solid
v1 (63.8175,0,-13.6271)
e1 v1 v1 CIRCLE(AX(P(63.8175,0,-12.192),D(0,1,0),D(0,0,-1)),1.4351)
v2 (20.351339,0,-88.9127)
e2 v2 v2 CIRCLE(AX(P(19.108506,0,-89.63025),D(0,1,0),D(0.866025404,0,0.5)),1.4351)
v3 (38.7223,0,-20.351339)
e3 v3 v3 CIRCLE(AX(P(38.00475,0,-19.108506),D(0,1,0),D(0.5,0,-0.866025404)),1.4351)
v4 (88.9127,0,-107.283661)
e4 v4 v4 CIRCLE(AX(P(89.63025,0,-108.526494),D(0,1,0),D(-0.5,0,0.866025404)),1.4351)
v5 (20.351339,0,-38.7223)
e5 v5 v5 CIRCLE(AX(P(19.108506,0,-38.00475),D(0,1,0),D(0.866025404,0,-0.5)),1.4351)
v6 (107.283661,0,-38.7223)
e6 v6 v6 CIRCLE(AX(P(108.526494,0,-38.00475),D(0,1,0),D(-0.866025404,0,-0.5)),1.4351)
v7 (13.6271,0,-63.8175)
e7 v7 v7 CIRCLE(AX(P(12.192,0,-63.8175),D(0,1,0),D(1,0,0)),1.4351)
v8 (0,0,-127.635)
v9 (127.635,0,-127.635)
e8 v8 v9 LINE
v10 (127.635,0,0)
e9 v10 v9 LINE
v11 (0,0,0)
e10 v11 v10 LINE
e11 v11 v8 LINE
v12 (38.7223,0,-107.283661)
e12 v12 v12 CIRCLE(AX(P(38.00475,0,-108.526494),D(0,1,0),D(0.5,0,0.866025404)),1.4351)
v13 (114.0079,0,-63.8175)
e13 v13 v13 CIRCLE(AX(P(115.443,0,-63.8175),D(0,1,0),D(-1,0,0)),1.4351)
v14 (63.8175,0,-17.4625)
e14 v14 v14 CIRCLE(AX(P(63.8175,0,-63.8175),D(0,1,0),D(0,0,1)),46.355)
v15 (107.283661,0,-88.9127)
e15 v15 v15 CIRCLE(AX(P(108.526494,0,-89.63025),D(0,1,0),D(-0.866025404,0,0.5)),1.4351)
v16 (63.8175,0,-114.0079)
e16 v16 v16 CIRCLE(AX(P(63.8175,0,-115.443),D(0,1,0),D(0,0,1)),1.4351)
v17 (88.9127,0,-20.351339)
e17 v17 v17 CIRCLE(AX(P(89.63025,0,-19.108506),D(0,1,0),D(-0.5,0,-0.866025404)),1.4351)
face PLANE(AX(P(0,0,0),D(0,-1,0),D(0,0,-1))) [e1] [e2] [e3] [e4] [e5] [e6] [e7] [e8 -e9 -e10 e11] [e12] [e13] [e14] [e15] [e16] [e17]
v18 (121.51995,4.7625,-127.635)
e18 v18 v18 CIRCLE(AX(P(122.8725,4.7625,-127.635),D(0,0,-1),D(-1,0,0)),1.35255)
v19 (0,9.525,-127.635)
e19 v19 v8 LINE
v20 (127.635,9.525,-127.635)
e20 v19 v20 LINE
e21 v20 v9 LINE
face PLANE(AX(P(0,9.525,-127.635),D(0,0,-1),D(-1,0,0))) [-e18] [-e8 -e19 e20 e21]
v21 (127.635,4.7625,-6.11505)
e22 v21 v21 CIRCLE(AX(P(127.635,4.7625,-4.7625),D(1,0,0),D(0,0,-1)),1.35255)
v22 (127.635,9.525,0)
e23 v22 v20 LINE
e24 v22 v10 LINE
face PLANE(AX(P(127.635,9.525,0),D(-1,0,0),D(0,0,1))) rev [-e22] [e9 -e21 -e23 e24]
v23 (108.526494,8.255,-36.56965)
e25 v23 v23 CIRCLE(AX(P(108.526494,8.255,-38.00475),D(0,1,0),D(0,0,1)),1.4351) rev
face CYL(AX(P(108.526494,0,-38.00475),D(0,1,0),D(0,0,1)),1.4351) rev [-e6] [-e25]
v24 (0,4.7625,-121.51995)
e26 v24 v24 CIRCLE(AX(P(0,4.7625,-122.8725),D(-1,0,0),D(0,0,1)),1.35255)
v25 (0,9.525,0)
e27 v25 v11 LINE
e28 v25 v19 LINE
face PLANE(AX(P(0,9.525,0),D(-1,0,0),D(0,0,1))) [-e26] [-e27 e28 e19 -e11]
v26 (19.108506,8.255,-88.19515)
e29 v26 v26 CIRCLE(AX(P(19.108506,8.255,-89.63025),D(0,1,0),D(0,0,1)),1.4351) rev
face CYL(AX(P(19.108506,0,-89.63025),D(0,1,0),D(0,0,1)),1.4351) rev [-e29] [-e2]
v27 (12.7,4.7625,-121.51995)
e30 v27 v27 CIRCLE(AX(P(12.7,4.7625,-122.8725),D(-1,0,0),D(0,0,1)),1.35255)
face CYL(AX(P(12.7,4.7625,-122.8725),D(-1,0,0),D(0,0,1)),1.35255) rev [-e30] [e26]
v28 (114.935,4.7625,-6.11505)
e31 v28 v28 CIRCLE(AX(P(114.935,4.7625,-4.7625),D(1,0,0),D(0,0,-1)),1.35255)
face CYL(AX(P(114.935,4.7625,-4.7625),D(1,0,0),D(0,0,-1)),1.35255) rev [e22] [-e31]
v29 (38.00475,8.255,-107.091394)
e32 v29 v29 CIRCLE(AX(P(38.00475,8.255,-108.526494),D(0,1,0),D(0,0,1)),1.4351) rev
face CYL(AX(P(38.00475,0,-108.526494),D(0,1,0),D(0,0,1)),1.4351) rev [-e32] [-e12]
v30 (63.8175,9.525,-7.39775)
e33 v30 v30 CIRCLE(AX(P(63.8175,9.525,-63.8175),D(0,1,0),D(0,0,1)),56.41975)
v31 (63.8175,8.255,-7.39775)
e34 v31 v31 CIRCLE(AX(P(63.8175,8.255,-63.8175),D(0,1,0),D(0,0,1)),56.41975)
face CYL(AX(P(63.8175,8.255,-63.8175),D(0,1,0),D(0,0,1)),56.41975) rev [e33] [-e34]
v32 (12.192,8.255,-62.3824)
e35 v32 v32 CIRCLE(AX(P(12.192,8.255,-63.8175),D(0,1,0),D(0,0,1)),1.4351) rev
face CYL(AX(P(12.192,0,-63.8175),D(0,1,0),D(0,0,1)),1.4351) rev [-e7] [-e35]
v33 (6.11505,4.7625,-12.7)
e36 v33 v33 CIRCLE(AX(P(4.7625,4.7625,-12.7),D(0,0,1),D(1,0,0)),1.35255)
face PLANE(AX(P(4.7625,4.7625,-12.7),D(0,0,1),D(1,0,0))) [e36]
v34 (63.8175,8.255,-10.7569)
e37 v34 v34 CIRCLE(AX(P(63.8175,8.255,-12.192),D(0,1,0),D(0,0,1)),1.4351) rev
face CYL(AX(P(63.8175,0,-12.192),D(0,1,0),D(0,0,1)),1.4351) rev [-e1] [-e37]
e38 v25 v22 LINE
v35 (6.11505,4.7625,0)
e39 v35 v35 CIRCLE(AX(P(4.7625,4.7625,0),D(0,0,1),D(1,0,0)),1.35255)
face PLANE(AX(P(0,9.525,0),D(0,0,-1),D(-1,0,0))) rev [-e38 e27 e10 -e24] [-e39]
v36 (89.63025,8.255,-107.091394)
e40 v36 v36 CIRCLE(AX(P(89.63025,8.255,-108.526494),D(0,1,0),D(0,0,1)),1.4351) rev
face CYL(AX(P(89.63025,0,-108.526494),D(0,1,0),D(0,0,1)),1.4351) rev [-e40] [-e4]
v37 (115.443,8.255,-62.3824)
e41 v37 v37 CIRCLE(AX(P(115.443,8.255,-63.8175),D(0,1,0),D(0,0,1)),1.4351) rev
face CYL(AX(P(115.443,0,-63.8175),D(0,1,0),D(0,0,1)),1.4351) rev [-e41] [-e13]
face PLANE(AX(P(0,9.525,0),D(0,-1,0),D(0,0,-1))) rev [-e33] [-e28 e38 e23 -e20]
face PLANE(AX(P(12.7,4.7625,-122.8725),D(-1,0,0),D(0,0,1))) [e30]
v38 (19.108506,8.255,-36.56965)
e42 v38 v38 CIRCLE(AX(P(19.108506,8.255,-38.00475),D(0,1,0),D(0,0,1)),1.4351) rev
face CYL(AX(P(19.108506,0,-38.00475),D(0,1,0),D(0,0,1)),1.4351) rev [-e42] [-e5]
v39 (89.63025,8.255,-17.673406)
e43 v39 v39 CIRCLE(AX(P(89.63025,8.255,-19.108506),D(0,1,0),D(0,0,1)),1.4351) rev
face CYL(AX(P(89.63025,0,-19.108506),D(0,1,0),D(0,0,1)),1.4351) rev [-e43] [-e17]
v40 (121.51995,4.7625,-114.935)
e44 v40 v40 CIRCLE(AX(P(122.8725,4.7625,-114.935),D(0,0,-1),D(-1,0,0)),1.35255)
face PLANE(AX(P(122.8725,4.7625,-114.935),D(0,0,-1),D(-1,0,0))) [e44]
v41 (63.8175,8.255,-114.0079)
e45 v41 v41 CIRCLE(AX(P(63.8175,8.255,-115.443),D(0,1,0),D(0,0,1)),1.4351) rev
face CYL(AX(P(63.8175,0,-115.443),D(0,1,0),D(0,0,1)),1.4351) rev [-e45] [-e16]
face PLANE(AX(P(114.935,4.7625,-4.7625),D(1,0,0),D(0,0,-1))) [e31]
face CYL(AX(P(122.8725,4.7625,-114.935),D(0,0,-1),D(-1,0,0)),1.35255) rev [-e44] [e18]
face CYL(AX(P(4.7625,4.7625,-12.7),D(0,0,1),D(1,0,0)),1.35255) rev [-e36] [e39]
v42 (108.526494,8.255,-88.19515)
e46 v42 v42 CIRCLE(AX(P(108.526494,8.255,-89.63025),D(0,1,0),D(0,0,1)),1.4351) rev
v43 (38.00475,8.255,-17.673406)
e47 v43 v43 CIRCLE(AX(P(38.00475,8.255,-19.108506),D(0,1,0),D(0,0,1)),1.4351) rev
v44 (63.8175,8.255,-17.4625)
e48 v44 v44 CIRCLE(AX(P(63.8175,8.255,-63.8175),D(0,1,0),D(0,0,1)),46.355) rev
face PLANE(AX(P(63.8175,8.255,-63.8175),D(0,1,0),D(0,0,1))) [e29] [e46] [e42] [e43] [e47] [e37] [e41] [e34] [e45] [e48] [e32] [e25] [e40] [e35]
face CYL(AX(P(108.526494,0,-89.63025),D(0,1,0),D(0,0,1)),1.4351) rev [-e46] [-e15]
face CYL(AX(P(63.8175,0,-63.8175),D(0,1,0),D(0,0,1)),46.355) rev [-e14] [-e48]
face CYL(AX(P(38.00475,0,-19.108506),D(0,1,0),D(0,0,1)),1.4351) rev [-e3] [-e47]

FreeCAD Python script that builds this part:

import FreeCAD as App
import Part
import Sketcher
Q = App.Units.Quantity


def add_polygon(sketch, points):
    """Adds a closed chain of lines whose ends are joined by coincident constraints."""
    first, n = sketch.GeometryCount, len(points)
    for a, b in zip(points, points[1:] + points[:1]):
        sketch.addGeometry(Part.LineSegment(App.Vector(*a, 0), App.Vector(*b, 0)), False)
    for i in range(n):
        sketch.addConstraint(Sketcher.Constraint("Coincident", first + i, 2, first + (i + 1) % n, 1))

doc = App.newDocument("Part")
body = doc.addObject("PartDesign::Body", "Body")

# Sketch on XZ plane
sketch1 = body.newObject("Sketcher::SketchObject", "Sketch")
sketch1.AttachmentSupport = (doc.getObject("XZ_Plane"), [""])
sketch1.MapMode = "FlatFace"
add_polygon(sketch1, [(0, -127.635), (0, 0), (127.635, 0), (127.635, -127.635)])  # lines 0-3
sketch1.addConstraint([
    Sketcher.Constraint("Vertical", 0),
    Sketcher.Constraint("Horizontal", 1),
    Sketcher.Constraint("Vertical", 2),
    Sketcher.Constraint("Horizontal", 3),
    Sketcher.Constraint("Coincident", 0, 2, -1, 1),
    Sketcher.Constraint("Equal", 3, 0),
    Sketcher.Constraint("DistanceX", 1, 1, 1, 2, Q("5.025 in")),
])
pad1 = body.newObject("PartDesign::Pad", "Pad")
pad1.Profile = sketch1
pad1.Length = Q("0.375 in")
pad1.Reversed = True

# Sketch on YZ plane
sketch2 = body.newObject("Sketcher::SketchObject", "Sketch001")
sketch2.AttachmentSupport = (doc.getObject("YZ_Plane"), [""])
sketch2.MapMode = "FlatFace"
sketch2.AttachmentOffset = App.Placement(App.Vector(0, 0, 5.025 * 25.4), App.Rotation())
sketch2.addGeometry(Part.Circle(App.Vector(4.7625, -4.7625, 0), App.Vector(0, 0, 1), 1.35255), False)
sketch2.addConstraint([
    Sketcher.Constraint("Diameter", 0, Q("0.1065 in")),
    Sketcher.Constraint("DistanceX", -1, 1, 0, 3, Q("0.1875 in")),
    Sketcher.Constraint("DistanceY", 0, 3, -1, 1, Q("0.1875 in")),
])
pocket1 = body.newObject("PartDesign::Pocket", "Pocket")
pocket1.Profile = sketch2
pocket1.Length = Q("0.5 in")

# Sketch on XY plane
sketch3 = body.newObject("Sketcher::SketchObject", "Sketch002")
sketch3.AttachmentSupport = (doc.getObject("XY_Plane"), [""])
sketch3.MapMode = "FlatFace"
sketch3.AttachmentOffset = App.Placement(App.Vector(0, 0, -5.025 * 25.4), App.Rotation())
sketch3.addGeometry(Part.Circle(App.Vector(122.8725, 4.7625, 0), App.Vector(0, 0, 1), 1.35255), False)
sketch3.addConstraint([
    Sketcher.Constraint("Diameter", 0, Q("0.1065 in")),
    Sketcher.Constraint("DistanceY", -1, 1, 0, 3, Q("0.1875 in")),
    Sketcher.Constraint("DistanceX", -1, 1, 0, 3, Q("4.8375 in")),
])
pocket2 = body.newObject("PartDesign::Pocket", "Pocket001")
pocket2.Profile = sketch3
pocket2.Length = Q("0.5 in")
pocket2.Reversed = True

# Sketch on YZ plane
sketch4 = body.newObject("Sketcher::SketchObject", "Sketch003")
sketch4.AttachmentSupport = (doc.getObject("YZ_Plane"), [""])
sketch4.MapMode = "FlatFace"
sketch4.addGeometry(Part.Circle(App.Vector(4.7625, -122.8725, 0), App.Vector(0, 0, 1), 1.35255), False)
sketch4.addConstraint([
    Sketcher.Constraint("Diameter", 0, Q("0.1065 in")),
    Sketcher.Constraint("DistanceX", -1, 1, 0, 3, Q("0.1875 in")),
    Sketcher.Constraint("DistanceY", 0, 3, -1, 1, Q("4.8375 in")),
])
pocket3 = body.newObject("PartDesign::Pocket", "Pocket002")
pocket3.Profile = sketch4
pocket3.Length = Q("0.5 in")
pocket3.Reversed = True

# Sketch on XY plane
sketch5 = body.newObject("Sketcher::SketchObject", "Sketch004")
sketch5.AttachmentSupport = (doc.getObject("XY_Plane"), [""])
sketch5.MapMode = "FlatFace"
sketch5.addGeometry(Part.Circle(App.Vector(4.7625, 4.7625, 0), App.Vector(0, 0, 1), 1.35255), False)
sketch5.addConstraint([
    Sketcher.Constraint("Diameter", 0, Q("0.1065 in")),
    Sketcher.Constraint("DistanceX", -1, 1, 0, 3, Q("0.1875 in")),
    Sketcher.Constraint("DistanceY", -1, 1, 0, 3, Q("0.1875 in")),
])
pocket4 = body.newObject("PartDesign::Pocket", "Pocket003")
pocket4.Profile = sketch5
pocket4.Length = Q("0.5 in")

# Sketch on XZ plane
sketch6 = body.newObject("Sketcher::SketchObject", "Sketch005")
sketch6.AttachmentSupport = (doc.getObject("XZ_Plane"), [""])
sketch6.MapMode = "FlatFace"
sketch6.AttachmentOffset = App.Placement(App.Vector(0, 0, -0.375 * 25.4), App.Rotation())
sketch6.addGeometry(Part.Circle(App.Vector(63.8175, -63.8175, 0), App.Vector(0, 0, 1), 46.355), False)
sketch6.addConstraint([
    Sketcher.Constraint("Diameter", 0, Q("3.65 in")),
    Sketcher.Constraint("DistanceX", -1, 1, 0, 3, Q("2.5125 in")),
    Sketcher.Constraint("DistanceY", 0, 3, -1, 1, Q("2.5125 in")),
])
pocket5 = body.newObject("PartDesign::Pocket", "Pocket004")
pocket5.Profile = sketch6
pocket5.Length = Q("0.375 in")
pocket5.Reversed = True

# Sketch on XZ plane
sketch7 = body.newObject("Sketcher::SketchObject", "Sketch006")
sketch7.AttachmentSupport = (doc.getObject("XZ_Plane"), [""])
sketch7.MapMode = "FlatFace"
sketch7.AttachmentOffset = App.Placement(App.Vector(0, 0, -0.375 * 25.4), App.Rotation())
sketch7.addGeometry(Part.Circle(App.Vector(63.8175, -115.443, 0), App.Vector(0, 0, 1), 1.4351), False)
sketch7.addConstraint([
    Sketcher.Constraint("Diameter", 0, Q("0.113 in")),
    Sketcher.Constraint("DistanceY", 0, 3, -1, 1, Q("4.545 in")),
    Sketcher.Constraint("DistanceX", -1, 1, 0, 3, Q("2.5125 in")),
])
pocket6 = body.newObject("PartDesign::Pocket", "Pocket005")
pocket6.Profile = sketch7
pocket6.Type = "ThroughAll"
pocket6.Reversed = True
doc.recompute()

datumline = body.newObject("PartDesign::Line", "DatumLine")
datumline.Placement = App.Placement(App.Vector(63.8175, 0, -63.8175), App.Rotation(App.Vector(0, 0, 1), App.Vector(0, 1, 0)))
polarpattern = body.newObject("PartDesign::PolarPattern", "PolarPattern")
polarpattern.Originals = [pocket6]
polarpattern.Axis = (datumline, [""])
polarpattern.Angle = 360
polarpattern.Occurrences = 12
body.Tip = polarpattern

# Sketch on XZ plane
sketch8 = body.newObject("Sketcher::SketchObject", "Sketch007")
sketch8.AttachmentSupport = (doc.getObject("XZ_Plane"), [""])
sketch8.MapMode = "FlatFace"
sketch8.AttachmentOffset = App.Placement(App.Vector(0, 0, -0.375 * 25.4), App.Rotation())
sketch8.addGeometry(Part.Circle(App.Vector(63.8175, -63.8175, 0), App.Vector(0, 0, 1), 56.41975), False)
sketch8.addConstraint([
    Sketcher.Constraint("Diameter", 0, Q("4.4425 in")),
    Sketcher.Constraint("DistanceX", -1, 1, 0, 3, Q("2.5125 in")),
    Sketcher.Constraint("DistanceY", 0, 3, -1, 1, Q("2.5125 in")),
])
pocket7 = body.newObject("PartDesign::Pocket", "Pocket006")
pocket7.Profile = sketch8
pocket7.Length = Q("0.05 in")
pocket7.Reversed = True

doc.recompute()
